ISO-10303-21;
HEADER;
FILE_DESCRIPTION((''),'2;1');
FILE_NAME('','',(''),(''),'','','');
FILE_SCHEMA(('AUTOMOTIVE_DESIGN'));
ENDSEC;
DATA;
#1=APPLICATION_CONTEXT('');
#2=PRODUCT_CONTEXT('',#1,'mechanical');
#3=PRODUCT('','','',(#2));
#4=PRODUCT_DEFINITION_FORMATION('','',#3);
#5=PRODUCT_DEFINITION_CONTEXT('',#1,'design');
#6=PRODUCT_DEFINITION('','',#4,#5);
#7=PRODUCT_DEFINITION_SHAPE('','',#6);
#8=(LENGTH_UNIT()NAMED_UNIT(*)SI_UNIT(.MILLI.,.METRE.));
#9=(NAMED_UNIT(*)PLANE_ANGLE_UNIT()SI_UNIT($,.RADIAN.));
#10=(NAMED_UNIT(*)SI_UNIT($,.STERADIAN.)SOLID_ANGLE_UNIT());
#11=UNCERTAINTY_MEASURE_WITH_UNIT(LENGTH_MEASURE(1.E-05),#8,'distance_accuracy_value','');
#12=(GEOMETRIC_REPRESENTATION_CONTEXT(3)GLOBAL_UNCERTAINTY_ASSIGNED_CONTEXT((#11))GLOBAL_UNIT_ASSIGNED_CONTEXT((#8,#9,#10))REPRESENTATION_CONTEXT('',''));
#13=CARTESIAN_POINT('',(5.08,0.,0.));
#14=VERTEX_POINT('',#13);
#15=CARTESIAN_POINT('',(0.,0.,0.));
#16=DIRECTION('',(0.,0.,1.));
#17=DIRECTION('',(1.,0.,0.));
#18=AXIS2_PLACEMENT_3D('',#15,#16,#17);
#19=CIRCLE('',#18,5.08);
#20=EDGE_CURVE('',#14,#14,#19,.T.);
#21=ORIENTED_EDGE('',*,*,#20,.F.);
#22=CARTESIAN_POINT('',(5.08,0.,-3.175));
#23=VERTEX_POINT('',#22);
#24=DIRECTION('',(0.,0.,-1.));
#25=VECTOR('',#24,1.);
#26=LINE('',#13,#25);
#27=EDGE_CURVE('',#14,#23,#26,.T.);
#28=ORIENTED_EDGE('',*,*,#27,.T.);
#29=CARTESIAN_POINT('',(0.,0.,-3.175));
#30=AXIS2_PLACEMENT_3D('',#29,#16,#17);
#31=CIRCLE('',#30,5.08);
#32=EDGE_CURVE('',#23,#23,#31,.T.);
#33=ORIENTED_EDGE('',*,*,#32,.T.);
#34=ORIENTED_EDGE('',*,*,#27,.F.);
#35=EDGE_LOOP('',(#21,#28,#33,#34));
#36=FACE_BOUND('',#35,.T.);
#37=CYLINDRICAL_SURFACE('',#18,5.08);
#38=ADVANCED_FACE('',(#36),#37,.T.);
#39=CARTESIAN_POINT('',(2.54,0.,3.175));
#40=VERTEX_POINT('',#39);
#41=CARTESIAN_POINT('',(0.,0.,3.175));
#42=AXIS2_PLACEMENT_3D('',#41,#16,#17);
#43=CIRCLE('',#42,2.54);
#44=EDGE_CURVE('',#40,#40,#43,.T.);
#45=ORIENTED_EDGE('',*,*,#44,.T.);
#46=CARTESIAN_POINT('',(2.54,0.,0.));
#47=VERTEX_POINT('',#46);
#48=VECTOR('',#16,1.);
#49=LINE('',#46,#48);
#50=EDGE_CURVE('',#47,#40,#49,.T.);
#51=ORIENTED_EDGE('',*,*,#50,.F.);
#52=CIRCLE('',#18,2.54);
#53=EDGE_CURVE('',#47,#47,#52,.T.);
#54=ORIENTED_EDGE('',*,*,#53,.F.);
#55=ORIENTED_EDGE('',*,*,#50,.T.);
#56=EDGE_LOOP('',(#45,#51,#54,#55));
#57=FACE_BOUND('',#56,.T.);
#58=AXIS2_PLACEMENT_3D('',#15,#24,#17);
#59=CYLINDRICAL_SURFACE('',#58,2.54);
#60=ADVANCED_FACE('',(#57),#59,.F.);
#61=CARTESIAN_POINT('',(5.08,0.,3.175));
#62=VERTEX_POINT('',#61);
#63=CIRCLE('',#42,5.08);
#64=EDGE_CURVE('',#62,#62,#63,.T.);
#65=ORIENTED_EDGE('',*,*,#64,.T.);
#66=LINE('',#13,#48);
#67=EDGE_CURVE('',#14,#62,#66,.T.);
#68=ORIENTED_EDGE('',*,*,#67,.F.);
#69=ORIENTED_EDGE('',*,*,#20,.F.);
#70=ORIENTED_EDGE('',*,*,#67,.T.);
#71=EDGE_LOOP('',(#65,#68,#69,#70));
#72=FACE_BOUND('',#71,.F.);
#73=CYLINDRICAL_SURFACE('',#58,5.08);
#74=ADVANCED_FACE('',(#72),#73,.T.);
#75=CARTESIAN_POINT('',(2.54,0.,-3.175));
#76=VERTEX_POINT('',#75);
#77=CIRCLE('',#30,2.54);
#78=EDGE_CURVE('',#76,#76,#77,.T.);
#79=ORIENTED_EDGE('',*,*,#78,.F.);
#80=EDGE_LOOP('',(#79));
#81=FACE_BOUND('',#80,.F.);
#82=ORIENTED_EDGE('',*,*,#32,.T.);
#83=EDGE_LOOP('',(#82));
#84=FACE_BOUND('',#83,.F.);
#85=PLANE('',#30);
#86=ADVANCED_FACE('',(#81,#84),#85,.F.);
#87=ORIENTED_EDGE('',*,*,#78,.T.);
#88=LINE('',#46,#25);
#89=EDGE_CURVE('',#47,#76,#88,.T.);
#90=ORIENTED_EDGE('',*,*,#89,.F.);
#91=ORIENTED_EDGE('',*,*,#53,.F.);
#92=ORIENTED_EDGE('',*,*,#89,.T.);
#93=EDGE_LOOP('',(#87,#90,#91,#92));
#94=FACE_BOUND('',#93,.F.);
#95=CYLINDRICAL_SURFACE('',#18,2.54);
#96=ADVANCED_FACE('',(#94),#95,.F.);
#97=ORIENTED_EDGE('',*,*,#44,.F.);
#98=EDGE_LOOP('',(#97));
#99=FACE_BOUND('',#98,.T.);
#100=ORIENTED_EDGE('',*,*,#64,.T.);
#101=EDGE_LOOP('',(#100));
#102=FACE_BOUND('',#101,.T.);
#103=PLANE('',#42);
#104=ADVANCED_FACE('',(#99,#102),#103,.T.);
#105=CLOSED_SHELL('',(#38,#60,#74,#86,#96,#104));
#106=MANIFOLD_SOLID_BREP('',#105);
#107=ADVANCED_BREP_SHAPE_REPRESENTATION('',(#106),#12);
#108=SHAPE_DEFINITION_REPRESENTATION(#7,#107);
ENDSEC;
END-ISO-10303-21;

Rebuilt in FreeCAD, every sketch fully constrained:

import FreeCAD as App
import Part
import Sketcher

V = App.Vector
Q = App.Units.Quantity

doc = App.newDocument("Part")
params = doc.addObject("Spreadsheet::Sheet", "Params")
for row, (alias, value) in enumerate([
    ("sketch1_diameter", "0.4 in"),
    ("sketch1_diameter2", "0.2 in"),
    ("pad1_length", "0.25 in"),
], start=1):
    params.set(f"A{row}", alias)
    params.set(f"B{row}", "=" + value)
    params.setAlias(f"B{row}", alias)

body = doc.addObject("PartDesign::Body", "Body")

# Sketch on XY plane
sketch1 = body.newObject("Sketcher::SketchObject", "Sketch")
sketch1.AttachmentSupport = (doc.getObject("XY_Plane"), [""])
sketch1.MapMode = "FlatFace"
sketch1.addGeometry([
    Part.Circle(V(0, 0, 0), V(0, 0, 1), 5.1),
    Part.Circle(V(0, 0, 0), V(0, 0, 1), 2.5),
], False)
sketch1.addConstraint([
    Sketcher.Constraint("Coincident", 0, 3, -1, 1),
    Sketcher.Constraint("Coincident", 1, 3, -1, 1),
    Sketcher.Constraint("Diameter", 0, Q("0.4 in")),
    Sketcher.Constraint("Diameter", 1, Q("0.2 in")),
])
sketch1.setExpression("Constraints[2]", "Params.sketch1_diameter")
sketch1.setExpression("Constraints[3]", "Params.sketch1_diameter2")
pad1 = body.newObject("PartDesign::Pad", "Pad")
pad1.Profile = sketch1
pad1.setExpression("Length", "Params.pad1_length")
pad1.Midplane = True

doc.recompute()
